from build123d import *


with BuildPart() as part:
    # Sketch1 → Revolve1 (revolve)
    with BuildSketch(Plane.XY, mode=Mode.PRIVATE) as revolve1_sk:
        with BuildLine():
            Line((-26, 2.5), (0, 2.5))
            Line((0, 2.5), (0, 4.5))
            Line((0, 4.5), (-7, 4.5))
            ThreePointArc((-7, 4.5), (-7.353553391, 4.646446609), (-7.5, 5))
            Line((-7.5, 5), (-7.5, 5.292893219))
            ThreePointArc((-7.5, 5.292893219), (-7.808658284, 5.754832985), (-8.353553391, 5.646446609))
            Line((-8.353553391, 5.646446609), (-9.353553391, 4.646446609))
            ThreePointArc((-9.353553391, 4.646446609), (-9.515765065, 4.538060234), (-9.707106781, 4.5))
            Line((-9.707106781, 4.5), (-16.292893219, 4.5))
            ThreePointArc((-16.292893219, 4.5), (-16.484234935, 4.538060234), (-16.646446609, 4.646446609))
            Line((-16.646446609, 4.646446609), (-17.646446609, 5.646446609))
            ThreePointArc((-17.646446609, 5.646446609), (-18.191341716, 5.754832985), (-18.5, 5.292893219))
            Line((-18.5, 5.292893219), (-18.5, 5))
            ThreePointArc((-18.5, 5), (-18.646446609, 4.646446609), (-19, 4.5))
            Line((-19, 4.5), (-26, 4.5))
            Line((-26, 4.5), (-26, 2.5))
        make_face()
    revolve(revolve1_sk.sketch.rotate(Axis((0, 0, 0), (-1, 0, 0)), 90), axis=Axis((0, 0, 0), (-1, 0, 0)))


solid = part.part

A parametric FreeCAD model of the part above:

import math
import FreeCAD as App
import Part
import Sketcher
from FreeCAD import Vector
Q = App.Units.Quantity

doc = App.newDocument("Part")
body = doc.addObject("PartDesign::Body", "Body")

# Sketch on XY plane
sketch1 = body.newObject("Sketcher::SketchObject", "Sketch")
sketch1.AttachmentSupport = (doc.getObject("XY_Plane"), [""])
sketch1.MapMode = "FlatFace"
sketch1.addGeometry([
    Part.LineSegment(Vector(-26, 2.5, 0), Vector(0, 2.5, 0)),  # 0
    Part.LineSegment(Vector(0, 2.5, 0), Vector(0, 4.5, 0)),  # 1
    Part.LineSegment(Vector(0, 4.5, 0), Vector(-7, 4.5, 0)),  # 2
    Part.ArcOfCircle(Part.Circle(Vector(-7, 5, 0), Vector(0, 0, 1), 0.5), math.radians(180), math.radians(270)),  # 3
    Part.LineSegment(Vector(-7.5, 5, 0), Vector(-7.5, 5.29, 0)),  # 4
    Part.ArcOfCircle(Part.Circle(Vector(-8, 5.29, 0), Vector(0, 0, 1), 0.5), math.radians(0), math.radians(135)),  # 5
    Part.LineSegment(Vector(-8.35, 5.65, 0), Vector(-9.35, 4.65, 0)),  # 6
    Part.ArcOfCircle(Part.Circle(Vector(-9.71, 5, 0), Vector(0, 0, 1), 0.5), math.radians(-90), math.radians(-45)),  # 7
    Part.LineSegment(Vector(-9.71, 4.5, 0), Vector(-16.29, 4.5, 0)),  # 8
    Part.ArcOfCircle(Part.Circle(Vector(-16.29, 5, 0), Vector(0, 0, 1), 0.5), math.radians(-135), math.radians(-90)),  # 9
    Part.LineSegment(Vector(-16.65, 4.65, 0), Vector(-17.65, 5.65, 0)),  # 10
    Part.ArcOfCircle(Part.Circle(Vector(-18, 5.29, 0), Vector(0, 0, 1), 0.5), math.radians(45), math.radians(180)),  # 11
    Part.LineSegment(Vector(-18.5, 5.29, 0), Vector(-18.5, 5, 0)),  # 12
    Part.ArcOfCircle(Part.Circle(Vector(-19, 5, 0), Vector(0, 0, 1), 0.5), math.radians(-90), math.radians(0)),  # 13
    Part.LineSegment(Vector(-19, 4.5, 0), Vector(-26, 4.5, 0)),  # 14
    Part.LineSegment(Vector(-26, 4.5, 0), Vector(-26, 2.5, 0)),  # 15
], False)
sketch1.addConstraint([
    Sketcher.Constraint("Coincident", 0, 2, 1, 1),
    Sketcher.Constraint("Coincident", 1, 2, 2, 1),
    Sketcher.Constraint("Tangent", 2, 2, 3, 2),
    Sketcher.Constraint("Tangent", 3, 1, 4, 1),
    Sketcher.Constraint("Tangent", 4, 2, 5, 1),
    Sketcher.Constraint("Tangent", 5, 2, 6, 1),
    Sketcher.Constraint("Tangent", 6, 2, 7, 2),
    Sketcher.Constraint("Tangent", 7, 1, 8, 1),
    Sketcher.Constraint("Tangent", 8, 2, 9, 2),
    Sketcher.Constraint("Tangent", 9, 1, 10, 1),
    Sketcher.Constraint("Tangent", 10, 2, 11, 1),
    Sketcher.Constraint("Tangent", 11, 2, 12, 1),
    Sketcher.Constraint("Tangent", 12, 2, 13, 2),
    Sketcher.Constraint("Tangent", 13, 1, 14, 1),
    Sketcher.Constraint("Coincident", 14, 2, 15, 1),
    Sketcher.Constraint("Coincident", 15, 2, 0, 1),
    Sketcher.Constraint("Horizontal", 0),
    Sketcher.Constraint("Vertical", 1),
    Sketcher.Constraint("Horizontal", 2),
    Sketcher.Constraint("Vertical", 4),
    Sketcher.Constraint("Horizontal", 8),
    Sketcher.Constraint("Vertical", 12),
    Sketcher.Constraint("Horizontal", 14),
    Sketcher.Constraint("Vertical", 15),
    Sketcher.Constraint("Equal", 3, 5),
    Sketcher.Constraint("Equal", 5, 7),
    Sketcher.Constraint("Equal", 7, 9),
    Sketcher.Constraint("Equal", 9, 11),
    Sketcher.Constraint("Equal", 11, 13),
    Sketcher.Constraint("PointOnObject", 0, 2, -2),
    Sketcher.Constraint("Perpendicular", 6, 10),
    Sketcher.Constraint("Horizontal", 3, 3, 7, 3),
    Sketcher.Constraint("Horizontal", 5, 3, 11, 3),
    Sketcher.Constraint("Horizontal", 9, 3, 13, 3),
    Sketcher.Constraint("Horizontal", 6, 2, 9, 1),
    Sketcher.Constraint("Equal", 2, 14),
    Sketcher.Constraint("Radius", 3, Q("0.5 mm")),
    Sketcher.Constraint("DistanceX", 0, 1, 0, 2, Q("26 mm")),
    Sketcher.Constraint("DistanceX", 2, 2, 2, 1, Q("7 mm")),
    Sketcher.Constraint("DistanceY", 1, 1, 1, 2, Q("2 mm")),
    Sketcher.Constraint("DistanceY", -1, 1, 3, 3, Q("5 mm")),
    Sketcher.Constraint("DistanceX", 6, 2, 5, 2, Q("1 mm")),
])
revolution = body.newObject("PartDesign::Revolution", "Revolution")
revolution.Profile = sketch1
revolution.ReferenceAxis = (sketch1, ["H_Axis"])
revolution.Angle = 360

doc.recompute()
